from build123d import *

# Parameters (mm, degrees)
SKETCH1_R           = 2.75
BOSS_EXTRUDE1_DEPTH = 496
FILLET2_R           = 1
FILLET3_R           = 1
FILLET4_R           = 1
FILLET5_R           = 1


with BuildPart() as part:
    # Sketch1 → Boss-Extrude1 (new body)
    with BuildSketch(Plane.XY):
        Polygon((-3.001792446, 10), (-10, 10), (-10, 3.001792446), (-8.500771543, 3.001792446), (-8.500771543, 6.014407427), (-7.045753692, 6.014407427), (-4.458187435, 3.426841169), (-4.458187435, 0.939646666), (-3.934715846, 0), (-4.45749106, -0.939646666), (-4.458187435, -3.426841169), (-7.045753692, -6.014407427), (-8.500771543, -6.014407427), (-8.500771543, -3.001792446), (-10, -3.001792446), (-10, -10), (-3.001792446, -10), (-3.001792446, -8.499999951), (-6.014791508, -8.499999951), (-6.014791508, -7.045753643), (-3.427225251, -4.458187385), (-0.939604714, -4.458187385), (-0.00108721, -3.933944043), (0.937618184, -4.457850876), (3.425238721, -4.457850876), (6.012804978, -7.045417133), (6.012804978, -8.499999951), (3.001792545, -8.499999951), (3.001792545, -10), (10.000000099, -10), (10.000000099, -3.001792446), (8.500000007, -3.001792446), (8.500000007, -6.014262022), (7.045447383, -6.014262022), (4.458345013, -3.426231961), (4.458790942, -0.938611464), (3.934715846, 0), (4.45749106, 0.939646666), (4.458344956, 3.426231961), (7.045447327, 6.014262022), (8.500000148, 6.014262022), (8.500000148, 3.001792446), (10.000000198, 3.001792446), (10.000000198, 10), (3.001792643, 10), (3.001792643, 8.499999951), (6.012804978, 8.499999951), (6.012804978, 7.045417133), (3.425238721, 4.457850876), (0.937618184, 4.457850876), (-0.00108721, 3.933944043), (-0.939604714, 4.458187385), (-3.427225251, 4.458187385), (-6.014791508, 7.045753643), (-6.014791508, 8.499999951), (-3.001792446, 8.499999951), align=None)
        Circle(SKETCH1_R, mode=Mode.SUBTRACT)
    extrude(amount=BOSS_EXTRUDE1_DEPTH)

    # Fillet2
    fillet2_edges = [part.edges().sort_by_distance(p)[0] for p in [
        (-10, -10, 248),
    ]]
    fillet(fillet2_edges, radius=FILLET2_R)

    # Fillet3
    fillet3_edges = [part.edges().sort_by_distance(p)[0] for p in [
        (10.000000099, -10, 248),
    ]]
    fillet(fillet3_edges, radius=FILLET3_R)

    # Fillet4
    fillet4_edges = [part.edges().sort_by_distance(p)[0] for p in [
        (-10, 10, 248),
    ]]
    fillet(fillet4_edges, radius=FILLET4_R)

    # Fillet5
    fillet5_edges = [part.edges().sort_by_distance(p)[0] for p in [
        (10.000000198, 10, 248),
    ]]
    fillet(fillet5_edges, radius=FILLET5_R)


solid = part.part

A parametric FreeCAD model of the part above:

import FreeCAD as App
import Part
import Sketcher

V = App.Vector


def edges_at(feature, points):
    """Names of the edges that pass closest to the given points."""
    edges = feature.Shape.Edges
    near = lambda p: min(range(len(edges)), key=lambda i: edges[i].distToShape(Part.Vertex(*p))[0])
    return sorted({f"Edge{near(p) + 1}" for p in points})


def add_polygon(sketch, points):
    """Adds a closed chain of lines whose ends are joined by coincident constraints."""
    first, n = sketch.GeometryCount, len(points)
    for a, b in zip(points, points[1:] + points[:1]):
        sketch.addGeometry(Part.LineSegment(App.Vector(*a, 0), App.Vector(*b, 0)), False)
    for i in range(n):
        sketch.addConstraint(Sketcher.Constraint("Coincident", first + i, 2, first + (i + 1) % n, 1))

doc = App.newDocument("Part")
body = doc.addObject("PartDesign::Body", "Body")

sketch1 = body.newObject("Sketcher::SketchObject", "Sketch")
sketch1.AttachmentSupport = (doc.getObject("XY_Plane"), [""])
sketch1.MapMode = "FlatFace"
add_polygon(sketch1, [(-3, 10), (-10, 10), (-10, 3), (-8.5, 3), (-8.5, 6), (-7, 6), (-4.5, 3.4), (-4.5, 0.9), (-3.9, 0), (-4.5, -0.9), (-4.5, -3.4), (-7, -6), (-8.5, -6), (-8.5, -3), (-10, -3), (-10, -10), (-3, -10), (-3, -8.5), (-6, -8.5), (-6, -7), (-3.4, -4.5), (-0.9, -4.5), (0, -3.9), (0.9, -4.5), (3.4, -4.5), (6, -7), (6, -8.5), (3, -8.5), (3, -10), (10, -10), (10, -3), (8.5, -3), (8.5, -6), (7, -6), (4.5, -3.4), (4.5, -0.9), (3.9, 0), (4.5, 0.9), (4.5, 3.4), (7, 6), (8.5, 6), (8.5, 3), (10, 3), (10, 10), (3, 10), (3, 8.5), (6, 8.5), (6, 7), (3.4, 4.5), (0.9, 4.5), (0, 3.9), (-0.9, 4.5), (-3.4, 4.5), (-6, 7), (-6, 8.5), (-3, 8.5)])
sketch1.addGeometry(Part.Circle(V(0, 0, 0), V(0, 0, 1), 2.8), False)
sketch1.addConstraint([
    Sketcher.Constraint("Horizontal", 0),
    Sketcher.Constraint("Vertical", 1),
    Sketcher.Constraint("Horizontal", 2),
    Sketcher.Constraint("Vertical", 3),
    Sketcher.Constraint("Horizontal", 4),
    Sketcher.Constraint("Vertical", 6),
    Sketcher.Constraint("Horizontal", 11),
    Sketcher.Constraint("Vertical", 12),
    Sketcher.Constraint("Horizontal", 13),
    Sketcher.Constraint("Vertical", 14),
    Sketcher.Constraint("Horizontal", 15),
    Sketcher.Constraint("Vertical", 16),
    Sketcher.Constraint("Horizontal", 17),
    Sketcher.Constraint("Vertical", 18),
    Sketcher.Constraint("Horizontal", 20),
    Sketcher.Constraint("Horizontal", 23),
    Sketcher.Constraint("Vertical", 25),
    Sketcher.Constraint("Horizontal", 26),
    Sketcher.Constraint("Vertical", 27),
    Sketcher.Constraint("Horizontal", 28),
    Sketcher.Constraint("Vertical", 29),
    Sketcher.Constraint("Horizontal", 30),
    Sketcher.Constraint("Vertical", 31),
    Sketcher.Constraint("Horizontal", 32),
    Sketcher.Constraint("Horizontal", 39),
    Sketcher.Constraint("Vertical", 40),
    Sketcher.Constraint("Horizontal", 41),
    Sketcher.Constraint("Vertical", 42),
    Sketcher.Constraint("Horizontal", 43),
    Sketcher.Constraint("Vertical", 44),
    Sketcher.Constraint("Horizontal", 45),
    Sketcher.Constraint("Vertical", 46),
    Sketcher.Constraint("Horizontal", 48),
    Sketcher.Constraint("Horizontal", 51),
    Sketcher.Constraint("Vertical", 53),
    Sketcher.Constraint("Horizontal", 54),
    Sketcher.Constraint("Vertical", 55),
    Sketcher.Constraint("Coincident", 56, 3, -1, 1),
    Sketcher.Constraint("Symmetric", 0, 2, 28, 2, -1, 1),
    Sketcher.Constraint("Symmetric", 7, 2, 35, 2, -1, 1),
    Sketcher.Constraint("Symmetric", 8, 2, 36, 2, -1, 1),
    Sketcher.Constraint("Symmetric", 13, 2, 41, 2, -1, 1),
    Sketcher.Constraint("Symmetric", 15, 2, 43, 2, -1, 1),
    Sketcher.Constraint("Symmetric", 26, 2, 54, 2, -1, 1),
    Sketcher.Constraint("Symmetric", 16, 2, 26, 2, -2),
    Sketcher.Constraint("Symmetric", 14, 2, 28, 2, -2),
    Sketcher.Constraint("Symmetric", 5, 2, 9, 2, -1),
    Sketcher.Constraint("Symmetric", 4, 2, 10, 2, -1),
    Sketcher.Constraint("Symmetric", 2, 2, 12, 2, -1),
    Sketcher.Constraint("Symmetric", 33, 2, 37, 2, -1),
    Sketcher.Constraint("Symmetric", 32, 2, 38, 2, -1),
    Sketcher.Constraint("Symmetric", 30, 2, 40, 2, -1),
    Sketcher.Constraint("Symmetric", 25, 2, 45, 2, -1),
    Sketcher.Constraint("Symmetric", 23, 2, 47, 2, -1),
    Sketcher.Constraint("Symmetric", 21, 2, 49, 2, -1),
    Sketcher.Constraint("Symmetric", 20, 2, 50, 2, -1),
    Sketcher.Constraint("Symmetric", 18, 2, 52, 2, -1),
    Sketcher.Constraint("PointOnObject", 7, 2, -1),
    Sketcher.Constraint("Perpendicular", 5, 10),
    Sketcher.Constraint("Parallel", 10, 19),
    Sketcher.Constraint("Perpendicular", 19, 24),
    Sketcher.Constraint("Perpendicular", 24, 47),
    Sketcher.Constraint("Perpendicular", 47, 52),
    Sketcher.Constraint("Horizontal", 6, 2, 36, 2),
    Sketcher.Constraint("Vertical", 22, 2, 48, 2),
    Sketcher.Constraint("Equal", 20, 23),
    Sketcher.Constraint("Equal", 43, 1),
    Sketcher.Constraint("Equal", 41, 16),
    Sketcher.Constraint("Equal", 10, 19),
    Sketcher.Constraint("Equal", 21, 22),
    Sketcher.Constraint("Equal", 19, 24),
    Sketcher.Constraint("Equal", 24, 33),
    Sketcher.Constraint("Equal", 22, 35),
    Sketcher.Constraint("Diameter", 56, 5.5),
    Sketcher.Constraint("DistanceX", 30, 2, 30, 1, 1.5),
    Sketcher.Constraint("DistanceX", 0, 2, -1, 1, 10.0),
    Sketcher.Constraint("DistanceY", -1, 1, 0, 2, 10.0),
    Sketcher.Constraint("DistanceX", 17, 2, 17, 1, 3.012999),
    Sketcher.Constraint("DistanceX", 2, 1, 2, 2, 1.499228),
    Sketcher.Constraint("DistanceX", 20, 1, 20, 2, 2.487621),
    Sketcher.Constraint("DistanceY", 31, 2, 31, 1, 3.01247),
    Sketcher.Constraint("DistanceY", 10, 2, 2, 2, 9.0162),
    Sketcher.Constraint("DistanceX", 9, 2, 21, 2, 4.4571),
    Sketcher.Constraint("DistanceX", 36, 2, 34, 2, 0.0013),
    Sketcher.Constraint("Distance", 5, 3.659371),
    Sketcher.Constraint("Distance", 7, 1.07562),
    Sketcher.Constraint("Distance", 8, 1.075281),
    Sketcher.Constraint("Distance", 21, 1.07501),
    Sketcher.Constraint("Distance", 34, 2.487621),
    Sketcher.Constraint("DistanceX", 0, 2, 0, 1, 6.998208),
    Sketcher.Constraint("DistanceX", 4, 1, 4, 2, 1.455018),
    Sketcher.Constraint("DistanceX", 26, 2, 26, 1, 3.011012),
    Sketcher.Constraint("DistanceX", 32, 2, 32, 1, 1.454553),
    Sketcher.Constraint("DistanceY", 6, 2, 6, 1, 2.487195),
    Sketcher.Constraint("DistanceY", 18, 1, 18, 2, 1.454246),
])
pad1 = body.newObject("PartDesign::Pad", "Pad")
pad1.Profile = sketch1
pad1.Length = 496
doc.recompute()

fillet = body.newObject("PartDesign::Fillet", "Fillet")
fillet.Base = (pad1, edges_at(pad1, [(-10, -10, 248)]))
fillet.Radius = 1
doc.recompute()

fillet2 = body.newObject("PartDesign::Fillet", "Fillet001")
fillet2.Base = (fillet, edges_at(fillet, [(10, -10, 248)]))
fillet2.Radius = 1
doc.recompute()

fillet3 = body.newObject("PartDesign::Fillet", "Fillet002")
fillet3.Base = (fillet2, edges_at(fillet2, [(-10, 10, 248)]))
fillet3.Radius = 1
doc.recompute()

fillet4 = body.newObject("PartDesign::Fillet", "Fillet003")
fillet4.Base = (fillet3, edges_at(fillet3, [(10, 10, 248)]))
fillet4.Radius = 1

doc.recompute()
